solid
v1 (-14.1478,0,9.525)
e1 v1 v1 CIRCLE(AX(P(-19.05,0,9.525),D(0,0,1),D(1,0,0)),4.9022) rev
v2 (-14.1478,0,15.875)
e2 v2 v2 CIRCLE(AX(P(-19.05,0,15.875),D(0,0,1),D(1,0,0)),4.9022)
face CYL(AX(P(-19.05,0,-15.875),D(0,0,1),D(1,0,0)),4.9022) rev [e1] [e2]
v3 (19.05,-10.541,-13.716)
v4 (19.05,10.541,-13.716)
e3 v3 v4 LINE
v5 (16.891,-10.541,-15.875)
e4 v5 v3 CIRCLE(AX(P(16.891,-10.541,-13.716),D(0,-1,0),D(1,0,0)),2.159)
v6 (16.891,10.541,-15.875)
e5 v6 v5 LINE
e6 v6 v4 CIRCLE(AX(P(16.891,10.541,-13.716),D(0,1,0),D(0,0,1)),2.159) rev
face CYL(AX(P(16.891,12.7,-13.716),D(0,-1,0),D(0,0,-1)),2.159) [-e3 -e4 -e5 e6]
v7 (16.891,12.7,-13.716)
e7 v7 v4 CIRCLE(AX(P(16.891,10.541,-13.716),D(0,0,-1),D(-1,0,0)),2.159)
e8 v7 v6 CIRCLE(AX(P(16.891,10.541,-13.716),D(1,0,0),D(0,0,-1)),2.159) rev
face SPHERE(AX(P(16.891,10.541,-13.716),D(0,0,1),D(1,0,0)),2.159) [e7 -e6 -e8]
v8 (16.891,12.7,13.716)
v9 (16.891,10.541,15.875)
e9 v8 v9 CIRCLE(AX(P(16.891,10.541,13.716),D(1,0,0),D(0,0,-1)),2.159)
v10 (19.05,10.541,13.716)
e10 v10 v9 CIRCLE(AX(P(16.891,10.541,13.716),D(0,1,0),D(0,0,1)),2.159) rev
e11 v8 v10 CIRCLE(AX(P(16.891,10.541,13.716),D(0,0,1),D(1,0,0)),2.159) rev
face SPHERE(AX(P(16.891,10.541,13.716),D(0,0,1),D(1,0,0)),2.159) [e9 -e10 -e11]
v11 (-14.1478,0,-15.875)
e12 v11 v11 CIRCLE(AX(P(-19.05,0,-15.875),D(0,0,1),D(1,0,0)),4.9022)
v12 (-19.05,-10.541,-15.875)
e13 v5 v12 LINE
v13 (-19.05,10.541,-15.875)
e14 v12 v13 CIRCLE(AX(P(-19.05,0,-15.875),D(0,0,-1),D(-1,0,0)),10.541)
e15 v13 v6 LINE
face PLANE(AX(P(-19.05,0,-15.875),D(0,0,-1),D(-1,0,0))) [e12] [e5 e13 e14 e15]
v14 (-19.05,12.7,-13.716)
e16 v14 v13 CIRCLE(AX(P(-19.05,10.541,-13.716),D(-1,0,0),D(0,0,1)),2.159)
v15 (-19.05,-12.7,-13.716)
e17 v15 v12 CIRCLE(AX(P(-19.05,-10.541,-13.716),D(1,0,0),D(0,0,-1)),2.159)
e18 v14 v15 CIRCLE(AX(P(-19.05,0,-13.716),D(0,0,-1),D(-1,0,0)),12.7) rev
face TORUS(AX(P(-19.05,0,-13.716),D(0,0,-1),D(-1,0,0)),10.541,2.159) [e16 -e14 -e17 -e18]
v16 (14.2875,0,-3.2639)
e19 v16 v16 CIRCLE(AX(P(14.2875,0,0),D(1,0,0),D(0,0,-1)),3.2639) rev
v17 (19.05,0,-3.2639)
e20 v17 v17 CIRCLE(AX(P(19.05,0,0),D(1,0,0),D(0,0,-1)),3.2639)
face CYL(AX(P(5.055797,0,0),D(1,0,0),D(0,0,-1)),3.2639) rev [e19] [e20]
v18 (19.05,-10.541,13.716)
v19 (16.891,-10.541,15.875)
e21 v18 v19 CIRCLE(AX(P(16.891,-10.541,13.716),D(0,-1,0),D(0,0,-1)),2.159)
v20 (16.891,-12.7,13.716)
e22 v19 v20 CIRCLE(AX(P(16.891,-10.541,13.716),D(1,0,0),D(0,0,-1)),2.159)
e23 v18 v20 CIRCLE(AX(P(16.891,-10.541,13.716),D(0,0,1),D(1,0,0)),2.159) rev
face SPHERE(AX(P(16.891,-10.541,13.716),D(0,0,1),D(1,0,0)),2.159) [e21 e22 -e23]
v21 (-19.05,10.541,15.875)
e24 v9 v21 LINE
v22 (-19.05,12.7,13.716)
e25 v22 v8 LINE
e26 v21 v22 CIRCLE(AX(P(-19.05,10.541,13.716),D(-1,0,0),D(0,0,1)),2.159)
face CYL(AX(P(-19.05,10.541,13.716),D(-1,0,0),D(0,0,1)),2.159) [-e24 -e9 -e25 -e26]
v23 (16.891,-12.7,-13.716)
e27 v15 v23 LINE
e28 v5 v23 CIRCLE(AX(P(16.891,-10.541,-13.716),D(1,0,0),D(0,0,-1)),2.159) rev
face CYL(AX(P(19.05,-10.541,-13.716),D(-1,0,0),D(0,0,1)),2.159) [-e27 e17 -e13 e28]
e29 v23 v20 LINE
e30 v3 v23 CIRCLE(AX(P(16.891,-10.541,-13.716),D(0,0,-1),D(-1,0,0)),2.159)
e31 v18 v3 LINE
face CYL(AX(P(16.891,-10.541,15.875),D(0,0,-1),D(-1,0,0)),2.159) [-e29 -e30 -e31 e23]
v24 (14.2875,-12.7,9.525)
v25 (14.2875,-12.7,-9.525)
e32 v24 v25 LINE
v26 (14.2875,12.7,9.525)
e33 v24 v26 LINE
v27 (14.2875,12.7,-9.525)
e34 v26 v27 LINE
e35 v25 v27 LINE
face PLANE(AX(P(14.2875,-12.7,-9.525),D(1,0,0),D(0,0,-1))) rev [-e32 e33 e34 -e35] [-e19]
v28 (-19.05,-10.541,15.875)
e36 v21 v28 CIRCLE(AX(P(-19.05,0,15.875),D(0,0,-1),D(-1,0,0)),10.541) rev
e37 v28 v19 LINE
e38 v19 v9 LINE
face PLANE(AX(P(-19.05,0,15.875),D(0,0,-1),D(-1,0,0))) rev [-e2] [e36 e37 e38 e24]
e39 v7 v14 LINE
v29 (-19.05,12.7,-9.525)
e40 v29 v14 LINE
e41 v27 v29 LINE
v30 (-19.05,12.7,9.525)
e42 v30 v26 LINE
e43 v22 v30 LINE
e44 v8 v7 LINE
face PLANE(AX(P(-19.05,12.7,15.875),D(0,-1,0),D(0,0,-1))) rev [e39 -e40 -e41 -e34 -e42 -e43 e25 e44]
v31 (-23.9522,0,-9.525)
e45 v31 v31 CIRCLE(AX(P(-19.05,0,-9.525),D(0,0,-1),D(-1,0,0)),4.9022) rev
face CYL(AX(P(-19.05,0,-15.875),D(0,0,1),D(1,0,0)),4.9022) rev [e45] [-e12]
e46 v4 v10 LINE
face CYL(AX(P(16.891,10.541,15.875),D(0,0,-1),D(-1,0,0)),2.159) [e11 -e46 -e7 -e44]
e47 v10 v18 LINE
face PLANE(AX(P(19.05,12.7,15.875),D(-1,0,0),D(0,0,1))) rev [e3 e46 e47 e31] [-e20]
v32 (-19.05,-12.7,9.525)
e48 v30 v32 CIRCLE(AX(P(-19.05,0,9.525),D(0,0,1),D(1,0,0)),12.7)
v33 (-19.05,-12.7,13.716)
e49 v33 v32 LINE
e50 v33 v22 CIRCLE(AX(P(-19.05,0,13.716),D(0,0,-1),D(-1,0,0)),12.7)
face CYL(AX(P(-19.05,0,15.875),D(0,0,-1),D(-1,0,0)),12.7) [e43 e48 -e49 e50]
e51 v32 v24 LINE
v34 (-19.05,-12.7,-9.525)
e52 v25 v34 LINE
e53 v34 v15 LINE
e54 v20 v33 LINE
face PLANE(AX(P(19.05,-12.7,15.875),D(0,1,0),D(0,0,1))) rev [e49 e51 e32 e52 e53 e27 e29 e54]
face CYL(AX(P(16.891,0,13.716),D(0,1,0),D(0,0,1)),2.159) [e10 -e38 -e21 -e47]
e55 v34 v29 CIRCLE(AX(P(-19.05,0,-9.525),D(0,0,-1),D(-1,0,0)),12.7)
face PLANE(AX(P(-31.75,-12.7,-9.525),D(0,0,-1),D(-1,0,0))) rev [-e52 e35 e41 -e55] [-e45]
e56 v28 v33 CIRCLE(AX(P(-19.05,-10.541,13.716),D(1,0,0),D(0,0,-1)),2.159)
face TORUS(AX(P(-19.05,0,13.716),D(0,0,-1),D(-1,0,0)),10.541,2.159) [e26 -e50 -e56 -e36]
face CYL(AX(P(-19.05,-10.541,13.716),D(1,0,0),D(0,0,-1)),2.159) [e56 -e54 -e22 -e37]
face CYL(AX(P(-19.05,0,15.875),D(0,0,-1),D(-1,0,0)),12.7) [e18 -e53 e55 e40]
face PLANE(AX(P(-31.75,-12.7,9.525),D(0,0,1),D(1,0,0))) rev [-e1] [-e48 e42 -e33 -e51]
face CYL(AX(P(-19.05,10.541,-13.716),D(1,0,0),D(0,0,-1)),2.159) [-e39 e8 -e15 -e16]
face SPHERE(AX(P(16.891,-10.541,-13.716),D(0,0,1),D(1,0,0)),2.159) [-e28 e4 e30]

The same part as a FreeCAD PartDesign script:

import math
import FreeCAD as App
import Part
import Sketcher

V = App.Vector
Q = App.Units.Quantity


def edges_at(feature, points):
    """Names of the edges that pass closest to the given points."""
    edges = feature.Shape.Edges
    near = lambda p: min(range(len(edges)), key=lambda i: edges[i].distToShape(Part.Vertex(*p))[0])
    return sorted({f"Edge{near(p) + 1}" for p in points})

doc = App.newDocument("Part")
body = doc.addObject("PartDesign::Body", "Body")

# Sketch on XY plane
sketch1 = body.newObject("Sketcher::SketchObject", "Sketch")
sketch1.AttachmentSupport = (doc.getObject("XY_Plane"), [""])
sketch1.MapMode = "FlatFace"
sketch1.addGeometry([
    Part.LineSegment(V(19, 13, 0), V(-19, 13, 0)),
    Part.ArcOfCircle(Part.Circle(V(-19, 0, 0), V(0, 0, 1), 13), math.radians(90), math.radians(270)),
    Part.LineSegment(V(-19, -13, 0), V(19, -13, 0)),
    Part.LineSegment(V(19, -13, 0), V(19, 13, 0)),
], False)
sketch1.addConstraint([
    Sketcher.Constraint("Tangent", 0, 2, 1, 1),
    Sketcher.Constraint("Tangent", 1, 2, 2, 1),
    Sketcher.Constraint("Coincident", 2, 2, 3, 1),
    Sketcher.Constraint("Coincident", 3, 2, 0, 1),
    Sketcher.Constraint("Horizontal", 0),
    Sketcher.Constraint("Horizontal", 2),
    Sketcher.Constraint("Vertical", 3),
    Sketcher.Constraint("Symmetric", 0, 2, 2, 2, -1, 1),
    Sketcher.Constraint("Radius", 1, Q("0.5 in")),
    Sketcher.Constraint("DistanceX", 0, 2, 0, 1, Q("1.5 in")),
])
pad1 = body.newObject("PartDesign::Pad", "Pad")
pad1.Profile = sketch1
pad1.Length = Q("1.25 in")
pad1.Midplane = True

# Sketch on XY plane
sketch2 = body.newObject("Sketcher::SketchObject", "Sketch001")
sketch2.AttachmentSupport = (doc.getObject("XY_Plane"), [""])
sketch2.MapMode = "FlatFace"
sketch2.AttachmentOffset = App.Placement(V(0, 0, 0.625 * 25.4), App.Rotation())
sketch2.addGeometry(Part.Circle(V(-19.1, 0, 0), V(0, 0, 1), 4.9), False)
sketch2.addConstraint([
    Sketcher.Constraint("PointOnObject", 0, 3, -1),
    Sketcher.Constraint("Diameter", 0, Q("0.386 in")),
    Sketcher.Constraint("DistanceX", 0, 3, -1, 1, Q("0.75 in")),
])
pocket1 = body.newObject("PartDesign::Pocket", "Pocket")
pocket1.Profile = sketch2
pocket1.Type = "ThroughAll"

# Sketch on XZ plane
sketch3 = body.newObject("Sketcher::SketchObject", "Sketch002")
sketch3.AttachmentSupport = (doc.getObject("XZ_Plane"), [""])
sketch3.MapMode = "FlatFace"
sketch3.AttachmentOffset = App.Placement(V(0, 0, -0.5 * 25.4), App.Rotation())
sketch3.addGeometry([
    Part.LineSegment(V(-32, -10, 0), V(-32, 10, 0)),
    Part.LineSegment(V(-32, 10, 0), V(14, 10, 0)),
    Part.LineSegment(V(14, 10, 0), V(14, -10, 0)),
    Part.LineSegment(V(14, -10, 0), V(-32, -10, 0)),
], False)
sketch3.addConstraint([
    Sketcher.Constraint("Coincident", 0, 2, 1, 1),
    Sketcher.Constraint("Coincident", 1, 2, 2, 1),
    Sketcher.Constraint("Coincident", 2, 2, 3, 1),
    Sketcher.Constraint("Coincident", 3, 2, 0, 1),
    Sketcher.Constraint("Vertical", 0),
    Sketcher.Constraint("Horizontal", 1),
    Sketcher.Constraint("Vertical", 2),
    Sketcher.Constraint("Horizontal", 3),
    Sketcher.Constraint("DistanceY", 0, 1, 0, 2, Q("0.75 in")),
    Sketcher.Constraint("DistanceX", 1, 1, 1, 2, Q("1.8125 in")),
    Sketcher.Constraint("DistanceX", 0, 2, -1, 1, Q("1.25 in")),
    Sketcher.Constraint("DistanceY", -1, 1, 0, 2, Q("0.375 in")),
])
pocket2 = body.newObject("PartDesign::Pocket", "Pocket001")
pocket2.Profile = sketch3
pocket2.Type = "ThroughAll"
pocket2.Reversed = True

# Sketch on YZ plane
sketch4 = body.newObject("Sketcher::SketchObject", "Sketch003")
sketch4.AttachmentSupport = (doc.getObject("YZ_Plane"), [""])
sketch4.MapMode = "FlatFace"
sketch4.AttachmentOffset = App.Placement(V(0, 0, 0.75 * 25.4), App.Rotation())
sketch4.addGeometry(Part.Circle(V(0, 0, 0), V(0, 0, 1), 3.3), False)
sketch4.addConstraint([
    Sketcher.Constraint("Coincident", 0, 3, -1, 1),
    Sketcher.Constraint("Diameter", 0, Q("0.257 in")),
])
pocket3 = body.newObject("PartDesign::Pocket", "Pocket002")
pocket3.Profile = sketch4
pocket3.Length = Q("0.1875 in")
doc.recompute()

fillet = body.newObject("PartDesign::Fillet", "Fillet")
fillet.Base = (pocket3, edges_at(pocket3, [
    (19.05, 0, 15.875),
    (0, 12.7, 15.875),
    (-31.75, 0, 15.875),
    (0, 12.7, -15.875),
    (19.05, 0, -15.875),
    (0, -12.7, -15.875),
    (-31.75, 0, -15.875),
    (19.05, 12.7, 0),
    (19.05, -12.7, 0),
    (0, -12.7, 15.875),
]))
fillet.Radius = Q("0.085 in")

doc.recompute()
